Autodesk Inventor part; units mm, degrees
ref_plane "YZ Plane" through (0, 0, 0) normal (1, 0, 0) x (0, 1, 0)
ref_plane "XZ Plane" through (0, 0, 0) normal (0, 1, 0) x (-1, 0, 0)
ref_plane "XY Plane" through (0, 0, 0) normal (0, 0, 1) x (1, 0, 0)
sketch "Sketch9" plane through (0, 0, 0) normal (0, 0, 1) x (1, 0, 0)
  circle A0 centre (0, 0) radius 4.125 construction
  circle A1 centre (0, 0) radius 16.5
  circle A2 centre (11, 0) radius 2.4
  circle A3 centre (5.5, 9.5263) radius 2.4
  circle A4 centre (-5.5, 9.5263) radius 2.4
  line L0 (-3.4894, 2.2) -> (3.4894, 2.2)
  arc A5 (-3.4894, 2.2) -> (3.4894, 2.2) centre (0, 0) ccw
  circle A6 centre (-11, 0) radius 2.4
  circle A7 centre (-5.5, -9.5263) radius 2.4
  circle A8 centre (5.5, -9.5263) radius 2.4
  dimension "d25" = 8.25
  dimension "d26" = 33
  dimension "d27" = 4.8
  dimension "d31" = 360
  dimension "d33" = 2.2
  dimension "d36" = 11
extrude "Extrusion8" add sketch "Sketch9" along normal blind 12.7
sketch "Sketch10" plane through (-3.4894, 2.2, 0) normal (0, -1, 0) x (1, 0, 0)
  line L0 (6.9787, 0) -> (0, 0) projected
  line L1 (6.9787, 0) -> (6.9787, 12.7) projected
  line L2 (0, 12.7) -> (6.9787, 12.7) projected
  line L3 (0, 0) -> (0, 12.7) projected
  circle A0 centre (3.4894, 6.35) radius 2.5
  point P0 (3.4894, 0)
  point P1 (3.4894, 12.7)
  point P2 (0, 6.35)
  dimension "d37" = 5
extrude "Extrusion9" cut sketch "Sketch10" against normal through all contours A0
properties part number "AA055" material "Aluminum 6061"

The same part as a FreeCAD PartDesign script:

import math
import FreeCAD as App
import Part
import Sketcher
from FreeCAD import Vector

doc = App.newDocument("Part")
body = doc.addObject("PartDesign::Body", "Body")

# Sketch on XY plane
sketch1 = body.newObject("Sketcher::SketchObject", "Sketch")
sketch1.AttachmentSupport = (doc.getObject("XY_Plane"), [""])
sketch1.MapMode = "FlatFace"
sketch1.addGeometry([
    Part.Circle(Vector(0, 0, 0), Vector(0, 0, 1), 16.5),  # 0
    Part.Circle(Vector(-5.5, -9.5263, 0), Vector(0, 0, 1), 2.4),  # 1
    Part.Circle(Vector(5.5, -9.5263, 0), Vector(0, 0, 1), 2.4),  # 2
    Part.ArcOfCircle(Part.Circle(Vector(0, 0, 0), Vector(0, 0, 1), 4.125035), math.radians(147.769352), math.radians(392.230648)),  # 3
    Part.LineSegment(Vector(-3.4894, 2.2, 0), Vector(3.4894, 2.2, 0)),  # 4
    Part.Circle(Vector(-11, 0, 0), Vector(0, 0, 1), 2.4),  # 5
    Part.Circle(Vector(-5.5, 9.5263, 0), Vector(0, 0, 1), 2.4),  # 6
    Part.Circle(Vector(11, 0, 0), Vector(0, 0, 1), 2.4),  # 7
    Part.Circle(Vector(5.5, 9.5263, 0), Vector(0, 0, 1), 2.4),  # 8
], False)
sketch1.addConstraint([
    Sketcher.Constraint("Coincident", 3, 1, 4, 1),
    Sketcher.Constraint("Coincident", 4, 2, 3, 2),
    Sketcher.Constraint("Horizontal", 4),
    Sketcher.Constraint("Coincident", 0, 3, -1, 1),
    Sketcher.Constraint("Coincident", 3, 3, -1, 1),
    Sketcher.Constraint("Equal", 1, 2),
    Sketcher.Constraint("Equal", 2, 5),
    Sketcher.Constraint("Equal", 5, 6),
    Sketcher.Constraint("Equal", 6, 7),
    Sketcher.Constraint("Equal", 7, 8),
    Sketcher.Constraint("Symmetric", 2, 3, 6, 3, -1, 1),
    Sketcher.Constraint("Symmetric", 5, 3, 7, 3, -1, 1),
    Sketcher.Constraint("Symmetric", 1, 3, 8, 3, -1, 1),
    Sketcher.Constraint("Symmetric", 1, 3, 2, 3, -2),
    Sketcher.Constraint("PointOnObject", 5, 3, -1),
    Sketcher.Constraint("Diameter", 0, 33.0),
    Sketcher.Constraint("Diameter", 1, 4.8),
    Sketcher.Constraint("DistanceX", 5, 3, -1, 1, 11.0),
    Sketcher.Constraint("Radius", 3, 4.125),
    Sketcher.Constraint("DistanceX", 1, 3, 2, 3, 11.0),
    Sketcher.Constraint("DistanceY", -1, 1, 3, 1, 2.2),
    Sketcher.Constraint("DistanceY", 1, 3, -1, 1, 9.5263),
])
pad1 = body.newObject("PartDesign::Pad", "Pad")
pad1.Profile = sketch1
pad1.Length = 12.7

# Sketch on XZ plane
sketch2 = body.newObject("Sketcher::SketchObject", "Sketch001")
sketch2.AttachmentSupport = (doc.getObject("XZ_Plane"), [""])
sketch2.MapMode = "FlatFace"
sketch2.AttachmentOffset = App.Placement(Vector(0, 0, -2.2), App.Rotation())
sketch2.addGeometry(Part.Circle(Vector(0, 6.35, 0), Vector(0, 0, 1), 2.5), False)
sketch2.addConstraint([
    Sketcher.Constraint("PointOnObject", 0, 3, -2),
    Sketcher.Constraint("Diameter", 0, 5.0),
    Sketcher.Constraint("DistanceY", -1, 1, 0, 3, 6.35),
])
pocket1 = body.newObject("PartDesign::Pocket", "Pocket")
pocket1.Profile = sketch2
pocket1.Type = "ThroughAll"

doc.recompute()
